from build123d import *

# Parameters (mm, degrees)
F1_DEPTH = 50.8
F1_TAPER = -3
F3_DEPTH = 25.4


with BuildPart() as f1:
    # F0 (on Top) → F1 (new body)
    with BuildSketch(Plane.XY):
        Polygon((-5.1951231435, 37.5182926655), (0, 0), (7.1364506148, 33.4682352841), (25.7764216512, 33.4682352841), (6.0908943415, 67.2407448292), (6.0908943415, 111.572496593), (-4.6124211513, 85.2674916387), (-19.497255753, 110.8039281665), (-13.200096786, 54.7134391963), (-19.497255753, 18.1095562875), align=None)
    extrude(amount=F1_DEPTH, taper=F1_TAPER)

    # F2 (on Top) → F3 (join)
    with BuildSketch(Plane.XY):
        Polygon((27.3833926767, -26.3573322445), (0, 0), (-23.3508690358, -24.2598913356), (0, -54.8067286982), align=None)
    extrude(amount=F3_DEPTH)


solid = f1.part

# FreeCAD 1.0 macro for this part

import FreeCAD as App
import Part
import Sketcher
from FreeCAD import Vector
Q = App.Units.Quantity


def add_polygon(sketch, points):
    """Adds a closed chain of lines whose ends are joined by coincident constraints."""
    first, n = sketch.GeometryCount, len(points)
    for a, b in zip(points, points[1:] + points[:1]):
        sketch.addGeometry(Part.LineSegment(App.Vector(*a, 0), App.Vector(*b, 0)), False)
    for i in range(n):
        sketch.addConstraint(Sketcher.Constraint("Coincident", first + i, 2, first + (i + 1) % n, 1))

doc = App.newDocument("Part")
params = doc.addObject("Spreadsheet::Sheet", "Params")
for row, (alias, value) in enumerate([
    ("pad1_length", "2 in"),
    ("pad1_taper", "3 deg"),
    ("pad2_length", "1 in"),
], start=1):
    params.set(f"A{row}", alias)
    params.set(f"B{row}", "=" + value)
    params.setAlias(f"B{row}", alias)

body = doc.addObject("PartDesign::Body", "Body")

sketch1 = body.newObject("Sketcher::SketchObject", "Sketch")
sketch1.AttachmentSupport = (doc.getObject("XY_Plane"), [""])
sketch1.MapMode = "FlatFace"
add_polygon(sketch1, [(-5, 38), (0, 0), (7, 33), (26, 33), (6, 67), (6, 112), (-5, 85), (-19, 111), (-13, 55), (-19, 18)])
sketch1.addConstraint(Sketcher.Constraint("Horizontal", 2))
sketch1.addConstraint(Sketcher.Constraint("Vertical", 4))
sketch1.addConstraint(Sketcher.Constraint("Coincident", 0, 2, -1, 1))
sketch1.addConstraint(Sketcher.Constraint("Parallel", 3, 6))
sketch1.addConstraint(Sketcher.Constraint("Vertical", 6, 2, 8, 2))
sketch1.addConstraint(Sketcher.Constraint("Distance", 8, Q("37.1416 mm")))
sketch1.addConstraint(Sketcher.Constraint("DistanceX", 2, 1, 2, 2, Q("18.639971 mm")))
sketch1.addConstraint(Sketcher.Constraint("DistanceY", 4, 1, 4, 2, Q("44.331752 mm")))
sketch1.addConstraint(Sketcher.Constraint("Distance", 3, Q("39.09095 mm")))
sketch1.addConstraint(Sketcher.Constraint("DistanceX", -1, 1, 1, 2, Q("7.136451 mm")))
sketch1.addConstraint(Sketcher.Constraint("DistanceX", 5, 2, -1, 1, Q("4.612421 mm")))
sketch1.addConstraint(Sketcher.Constraint("DistanceY", -1, 1, 5, 2, Q("85.267492 mm")))
sketch1.addConstraint(Sketcher.Constraint("DistanceY", -1, 1, 6, 2, Q("110.803928 mm")))
sketch1.addConstraint(Sketcher.Constraint("DistanceY", -1, 1, 7, 2, Q("54.713439 mm")))
sketch1.addConstraint(Sketcher.Constraint("DistanceY", 1, 2, 3, 2, Q("33.77251 mm")))
sketch1.addConstraint(Sketcher.Constraint("DistanceY", 6, 2, 4, 2, Q("0.768568 mm")))
sketch1.addConstraint(Sketcher.Constraint("DistanceX", 7, 2, 3, 2, Q("19.290991 mm")))
sketch1.addConstraint(Sketcher.Constraint("Distance", 0, Q("37.876267 mm")))
sketch1.addConstraint(Sketcher.Constraint("Distance", 9, Q("24.109128 mm")))
pad1 = body.newObject("PartDesign::Pad", "Pad")
pad1.Profile = sketch1
pad1.setExpression("Length", "Params.pad1_length")
pad1.setExpression("TaperAngle", "Params.pad1_taper")

sketch2 = body.newObject("Sketcher::SketchObject", "Sketch001")
sketch2.AttachmentSupport = (doc.getObject("XY_Plane"), [""])
sketch2.MapMode = "FlatFace"
add_polygon(sketch2, [(27, -26), (0, 0), (-23, -24), (0, -55)])
sketch2.addConstraint(Sketcher.Constraint("Coincident", 0, 2, -1, 1))
sketch2.addConstraint(Sketcher.Constraint("PointOnObject", 2, 2, -2))
sketch2.addConstraint(Sketcher.Constraint("Perpendicular", 0, 1))
sketch2.addConstraint(Sketcher.Constraint("Parallel", 1, 3))
sketch2.addConstraint(Sketcher.Constraint("Distance", 2, Q("38.449608 mm")))
sketch2.addConstraint(Sketcher.Constraint("Distance", 3, Q("39.486939 mm")))
sketch2.addConstraint(Sketcher.Constraint("DistanceX", 1, 2, -1, 1, Q("23.350869 mm")))
pad2 = body.newObject("PartDesign::Pad", "Pad001")
pad2.Profile = sketch2
pad2.setExpression("Length", "Params.pad2_length")

doc.recompute()
